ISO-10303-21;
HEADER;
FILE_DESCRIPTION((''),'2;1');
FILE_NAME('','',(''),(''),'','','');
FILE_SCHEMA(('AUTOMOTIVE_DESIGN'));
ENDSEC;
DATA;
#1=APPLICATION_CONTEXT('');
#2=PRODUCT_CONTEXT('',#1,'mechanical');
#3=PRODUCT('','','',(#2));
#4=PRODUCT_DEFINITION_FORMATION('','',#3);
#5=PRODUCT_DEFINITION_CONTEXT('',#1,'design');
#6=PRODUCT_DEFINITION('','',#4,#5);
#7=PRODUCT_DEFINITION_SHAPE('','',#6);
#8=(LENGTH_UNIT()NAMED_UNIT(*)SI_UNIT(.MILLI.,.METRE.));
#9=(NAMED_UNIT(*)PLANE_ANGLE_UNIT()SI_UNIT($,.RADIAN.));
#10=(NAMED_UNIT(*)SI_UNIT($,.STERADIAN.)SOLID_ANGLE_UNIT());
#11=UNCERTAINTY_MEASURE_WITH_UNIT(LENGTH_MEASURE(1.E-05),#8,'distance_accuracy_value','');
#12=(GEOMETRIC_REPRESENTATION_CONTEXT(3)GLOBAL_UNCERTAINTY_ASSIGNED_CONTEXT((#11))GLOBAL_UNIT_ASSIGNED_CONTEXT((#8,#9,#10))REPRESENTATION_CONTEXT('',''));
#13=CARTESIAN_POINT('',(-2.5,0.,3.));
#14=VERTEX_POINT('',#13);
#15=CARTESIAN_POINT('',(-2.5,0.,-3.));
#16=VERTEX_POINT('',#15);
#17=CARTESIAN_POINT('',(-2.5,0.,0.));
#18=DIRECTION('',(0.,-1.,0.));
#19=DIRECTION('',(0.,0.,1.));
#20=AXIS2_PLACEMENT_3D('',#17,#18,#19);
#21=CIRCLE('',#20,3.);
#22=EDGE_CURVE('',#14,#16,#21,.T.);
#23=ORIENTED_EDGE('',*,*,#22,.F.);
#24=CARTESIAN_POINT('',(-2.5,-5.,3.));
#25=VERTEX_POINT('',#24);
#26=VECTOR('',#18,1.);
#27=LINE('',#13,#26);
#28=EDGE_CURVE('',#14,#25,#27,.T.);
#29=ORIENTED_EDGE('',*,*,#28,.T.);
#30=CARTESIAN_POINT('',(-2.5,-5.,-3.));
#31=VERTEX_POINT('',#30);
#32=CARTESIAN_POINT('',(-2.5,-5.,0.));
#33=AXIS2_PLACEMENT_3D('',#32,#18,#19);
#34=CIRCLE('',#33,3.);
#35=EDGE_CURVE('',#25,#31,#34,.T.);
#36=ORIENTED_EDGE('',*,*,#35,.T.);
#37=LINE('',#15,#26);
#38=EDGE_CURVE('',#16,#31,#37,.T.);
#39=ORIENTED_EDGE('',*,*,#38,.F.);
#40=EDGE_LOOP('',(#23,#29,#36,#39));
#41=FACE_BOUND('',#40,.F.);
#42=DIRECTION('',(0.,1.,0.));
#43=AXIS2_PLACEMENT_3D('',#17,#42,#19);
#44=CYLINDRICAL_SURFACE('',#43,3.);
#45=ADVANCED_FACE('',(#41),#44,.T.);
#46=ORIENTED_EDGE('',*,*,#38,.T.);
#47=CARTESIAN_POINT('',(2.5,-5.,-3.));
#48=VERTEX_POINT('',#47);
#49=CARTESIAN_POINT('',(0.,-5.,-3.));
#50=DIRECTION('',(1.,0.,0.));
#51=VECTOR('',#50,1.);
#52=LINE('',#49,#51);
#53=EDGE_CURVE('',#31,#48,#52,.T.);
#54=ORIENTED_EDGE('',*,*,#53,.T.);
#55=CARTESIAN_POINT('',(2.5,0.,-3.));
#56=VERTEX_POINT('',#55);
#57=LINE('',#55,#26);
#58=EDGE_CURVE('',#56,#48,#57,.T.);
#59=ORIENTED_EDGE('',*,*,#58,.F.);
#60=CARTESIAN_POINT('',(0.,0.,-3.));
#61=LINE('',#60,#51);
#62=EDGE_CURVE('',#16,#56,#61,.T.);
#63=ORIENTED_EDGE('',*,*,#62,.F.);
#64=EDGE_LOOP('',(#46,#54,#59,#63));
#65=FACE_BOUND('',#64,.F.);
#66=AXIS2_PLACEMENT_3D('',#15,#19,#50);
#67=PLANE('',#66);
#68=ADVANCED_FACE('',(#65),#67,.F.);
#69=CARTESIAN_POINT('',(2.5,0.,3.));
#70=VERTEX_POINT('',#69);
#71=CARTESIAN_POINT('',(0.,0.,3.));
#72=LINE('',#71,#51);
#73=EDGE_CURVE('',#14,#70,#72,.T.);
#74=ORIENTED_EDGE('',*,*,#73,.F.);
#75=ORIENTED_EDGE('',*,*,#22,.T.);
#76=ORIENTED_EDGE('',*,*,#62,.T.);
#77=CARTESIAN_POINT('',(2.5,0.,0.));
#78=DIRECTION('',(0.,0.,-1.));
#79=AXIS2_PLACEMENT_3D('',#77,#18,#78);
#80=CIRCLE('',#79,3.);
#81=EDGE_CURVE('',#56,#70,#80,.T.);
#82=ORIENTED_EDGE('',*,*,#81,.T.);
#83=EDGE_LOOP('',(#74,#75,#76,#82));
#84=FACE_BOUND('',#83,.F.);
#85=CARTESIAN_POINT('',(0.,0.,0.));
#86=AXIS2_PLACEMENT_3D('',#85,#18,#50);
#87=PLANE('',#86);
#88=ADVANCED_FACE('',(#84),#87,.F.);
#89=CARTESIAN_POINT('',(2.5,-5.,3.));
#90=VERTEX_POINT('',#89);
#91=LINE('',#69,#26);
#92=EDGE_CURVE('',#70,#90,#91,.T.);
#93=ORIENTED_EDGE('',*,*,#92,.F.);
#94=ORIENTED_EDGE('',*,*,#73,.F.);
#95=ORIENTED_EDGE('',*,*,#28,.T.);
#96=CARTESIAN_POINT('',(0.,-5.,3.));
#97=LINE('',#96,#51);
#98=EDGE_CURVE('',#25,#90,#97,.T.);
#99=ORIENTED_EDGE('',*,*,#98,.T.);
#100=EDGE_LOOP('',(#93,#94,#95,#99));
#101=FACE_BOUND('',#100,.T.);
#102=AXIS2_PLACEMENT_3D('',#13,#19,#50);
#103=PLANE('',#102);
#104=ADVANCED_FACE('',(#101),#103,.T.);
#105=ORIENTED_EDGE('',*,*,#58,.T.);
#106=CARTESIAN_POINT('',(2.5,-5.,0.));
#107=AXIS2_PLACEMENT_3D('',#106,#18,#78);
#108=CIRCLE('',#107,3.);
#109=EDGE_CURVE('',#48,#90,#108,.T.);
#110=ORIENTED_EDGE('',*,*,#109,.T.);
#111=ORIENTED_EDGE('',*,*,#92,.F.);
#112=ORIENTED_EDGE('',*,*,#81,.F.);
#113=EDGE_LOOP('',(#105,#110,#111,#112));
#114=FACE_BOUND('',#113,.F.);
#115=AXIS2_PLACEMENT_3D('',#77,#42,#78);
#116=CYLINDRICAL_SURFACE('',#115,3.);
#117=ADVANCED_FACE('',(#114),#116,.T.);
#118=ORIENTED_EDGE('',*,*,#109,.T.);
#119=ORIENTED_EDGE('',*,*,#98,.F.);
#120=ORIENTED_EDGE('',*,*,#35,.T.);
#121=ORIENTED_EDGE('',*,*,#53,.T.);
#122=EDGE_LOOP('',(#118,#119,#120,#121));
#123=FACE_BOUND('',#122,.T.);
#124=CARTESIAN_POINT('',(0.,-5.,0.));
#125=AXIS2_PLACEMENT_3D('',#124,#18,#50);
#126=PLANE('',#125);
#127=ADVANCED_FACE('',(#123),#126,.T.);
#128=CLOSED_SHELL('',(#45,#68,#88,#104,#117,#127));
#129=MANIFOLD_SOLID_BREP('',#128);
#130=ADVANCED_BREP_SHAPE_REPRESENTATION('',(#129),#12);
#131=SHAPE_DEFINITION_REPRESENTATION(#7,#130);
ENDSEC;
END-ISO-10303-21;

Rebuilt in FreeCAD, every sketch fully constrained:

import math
import FreeCAD as App
import Part
import Sketcher
from FreeCAD import Vector

doc = App.newDocument("Part")
body = doc.addObject("PartDesign::Body", "Body")

sketch1 = body.newObject("Sketcher::SketchObject", "Sketch")
sketch1.AttachmentSupport = (doc.getObject("XZ_Plane"), [""])
sketch1.MapMode = "FlatFace"
sketch1.addGeometry([
    Part.LineSegment(Vector(-2.5, -3, 0), Vector(2.5, -3, 0)),
    Part.ArcOfCircle(Part.Circle(Vector(2.5, 0, 0), Vector(0, 0, 1), 3), math.radians(-90), math.radians(90)),
    Part.LineSegment(Vector(2.5, 3, 0), Vector(-2.5, 3, 0)),
    Part.ArcOfCircle(Part.Circle(Vector(-2.5, 0, 0), Vector(0, 0, 1), 3), math.radians(90), math.radians(270)),
], False)
sketch1.addConstraint([
    Sketcher.Constraint("Tangent", 0, 2, 1, 1),
    Sketcher.Constraint("Tangent", 1, 2, 2, 1),
    Sketcher.Constraint("Tangent", 2, 2, 3, 1),
    Sketcher.Constraint("Tangent", 3, 2, 0, 1),
    Sketcher.Constraint("Horizontal", 0),
    Sketcher.Constraint("Horizontal", 2),
    Sketcher.Constraint("Symmetric", 1, 3, 3, 3, -1, 1),
    Sketcher.Constraint("Radius", 1, 3.0),
    Sketcher.Constraint("DistanceX", 0, 1, 0, 2, 5.0),
])
pad1 = body.newObject("PartDesign::Pad", "Pad")
pad1.Profile = sketch1
pad1.Length = 5

doc.recompute()
